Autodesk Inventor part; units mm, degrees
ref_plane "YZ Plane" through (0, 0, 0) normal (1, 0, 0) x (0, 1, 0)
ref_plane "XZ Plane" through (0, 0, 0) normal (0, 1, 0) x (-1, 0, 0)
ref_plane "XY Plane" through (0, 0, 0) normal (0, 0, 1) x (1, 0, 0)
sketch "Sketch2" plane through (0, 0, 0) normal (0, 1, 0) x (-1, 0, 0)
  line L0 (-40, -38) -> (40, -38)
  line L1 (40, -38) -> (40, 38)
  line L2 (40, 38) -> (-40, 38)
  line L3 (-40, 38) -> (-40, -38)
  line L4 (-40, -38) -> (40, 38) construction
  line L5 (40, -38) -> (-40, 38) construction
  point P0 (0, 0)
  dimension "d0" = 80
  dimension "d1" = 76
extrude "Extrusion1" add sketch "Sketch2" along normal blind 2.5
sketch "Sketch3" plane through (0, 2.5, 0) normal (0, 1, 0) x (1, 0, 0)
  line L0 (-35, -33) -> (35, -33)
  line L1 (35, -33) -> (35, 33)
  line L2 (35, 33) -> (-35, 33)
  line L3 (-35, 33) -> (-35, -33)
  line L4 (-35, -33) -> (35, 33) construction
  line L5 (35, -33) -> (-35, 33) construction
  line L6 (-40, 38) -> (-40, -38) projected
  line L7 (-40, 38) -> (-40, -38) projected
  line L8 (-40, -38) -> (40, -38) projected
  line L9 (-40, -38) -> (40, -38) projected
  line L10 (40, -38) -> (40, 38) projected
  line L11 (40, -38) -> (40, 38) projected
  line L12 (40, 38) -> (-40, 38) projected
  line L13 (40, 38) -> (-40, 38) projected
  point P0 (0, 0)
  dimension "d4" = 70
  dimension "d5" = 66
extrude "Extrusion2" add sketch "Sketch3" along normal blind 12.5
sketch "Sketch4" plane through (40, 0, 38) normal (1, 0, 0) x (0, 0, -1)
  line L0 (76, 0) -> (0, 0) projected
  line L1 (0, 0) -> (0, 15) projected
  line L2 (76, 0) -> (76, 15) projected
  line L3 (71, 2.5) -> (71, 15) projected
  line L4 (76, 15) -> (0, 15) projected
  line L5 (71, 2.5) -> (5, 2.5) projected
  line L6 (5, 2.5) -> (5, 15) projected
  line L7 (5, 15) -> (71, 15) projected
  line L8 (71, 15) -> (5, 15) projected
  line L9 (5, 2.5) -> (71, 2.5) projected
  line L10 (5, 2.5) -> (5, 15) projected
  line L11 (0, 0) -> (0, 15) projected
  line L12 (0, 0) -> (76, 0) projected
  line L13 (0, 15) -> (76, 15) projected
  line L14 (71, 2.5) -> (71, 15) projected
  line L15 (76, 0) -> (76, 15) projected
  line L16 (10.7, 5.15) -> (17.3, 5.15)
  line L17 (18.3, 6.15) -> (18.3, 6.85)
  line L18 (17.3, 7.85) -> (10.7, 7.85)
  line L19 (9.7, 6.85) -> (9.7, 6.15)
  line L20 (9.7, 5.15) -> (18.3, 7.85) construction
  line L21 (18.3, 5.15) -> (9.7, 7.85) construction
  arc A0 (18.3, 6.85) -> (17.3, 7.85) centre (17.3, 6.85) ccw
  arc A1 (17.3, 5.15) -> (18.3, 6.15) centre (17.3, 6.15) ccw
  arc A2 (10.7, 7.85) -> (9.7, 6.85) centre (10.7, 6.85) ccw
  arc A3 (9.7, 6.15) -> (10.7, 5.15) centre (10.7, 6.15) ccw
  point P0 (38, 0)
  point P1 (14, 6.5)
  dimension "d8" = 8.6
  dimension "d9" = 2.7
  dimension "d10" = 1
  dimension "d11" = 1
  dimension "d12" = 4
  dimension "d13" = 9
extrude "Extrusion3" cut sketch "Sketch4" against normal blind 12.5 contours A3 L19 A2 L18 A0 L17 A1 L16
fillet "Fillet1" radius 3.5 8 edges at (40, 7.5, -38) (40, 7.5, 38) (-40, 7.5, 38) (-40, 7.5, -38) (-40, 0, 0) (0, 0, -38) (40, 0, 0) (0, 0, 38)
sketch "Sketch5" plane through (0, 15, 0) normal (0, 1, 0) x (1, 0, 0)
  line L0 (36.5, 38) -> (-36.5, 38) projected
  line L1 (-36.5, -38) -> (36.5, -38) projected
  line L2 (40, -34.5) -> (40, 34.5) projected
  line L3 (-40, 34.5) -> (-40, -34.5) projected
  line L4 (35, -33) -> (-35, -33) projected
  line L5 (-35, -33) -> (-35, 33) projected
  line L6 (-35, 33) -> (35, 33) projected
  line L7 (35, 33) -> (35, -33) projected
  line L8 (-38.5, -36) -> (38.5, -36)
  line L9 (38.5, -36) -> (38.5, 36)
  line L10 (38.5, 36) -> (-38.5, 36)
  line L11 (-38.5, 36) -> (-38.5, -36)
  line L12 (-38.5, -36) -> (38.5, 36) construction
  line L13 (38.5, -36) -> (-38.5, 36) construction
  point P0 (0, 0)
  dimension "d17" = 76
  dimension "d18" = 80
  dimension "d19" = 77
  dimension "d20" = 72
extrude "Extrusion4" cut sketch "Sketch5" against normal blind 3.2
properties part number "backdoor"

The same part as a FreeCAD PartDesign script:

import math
import FreeCAD as App
import Part
import Sketcher
from FreeCAD import Vector
Q = App.Units.Quantity


def edges_at(feature, points):
    """Names of the edges that pass closest to the given points."""
    edges = feature.Shape.Edges
    near = lambda p: min(range(len(edges)), key=lambda i: edges[i].distToShape(Part.Vertex(*p))[0])
    return sorted({f"Edge{near(p) + 1}" for p in points})


def add_polygon(sketch, points):
    """Adds a closed chain of lines whose ends are joined by coincident constraints."""
    first, n = sketch.GeometryCount, len(points)
    for a, b in zip(points, points[1:] + points[:1]):
        sketch.addGeometry(Part.LineSegment(App.Vector(*a, 0), App.Vector(*b, 0)), False)
    for i in range(n):
        sketch.addConstraint(Sketcher.Constraint("Coincident", first + i, 2, first + (i + 1) % n, 1))

doc = App.newDocument("Part")
body = doc.addObject("PartDesign::Body", "Body")

# Sketch on XZ plane
sketch1 = body.newObject("Sketcher::SketchObject", "Sketch")
sketch1.AttachmentSupport = (doc.getObject("XZ_Plane"), [""])
sketch1.MapMode = "FlatFace"
add_polygon(sketch1, [(40, 38), (40, -38), (-40, -38), (-40, 38)])  # lines 0-3
sketch1.addConstraint([
    Sketcher.Constraint("Vertical", 0),
    Sketcher.Constraint("Horizontal", 1),
    Sketcher.Constraint("Vertical", 2),
    Sketcher.Constraint("Horizontal", 3),
    Sketcher.Constraint("Symmetric", 0, 2, 2, 2, -1, 1),
    Sketcher.Constraint("DistanceX", 1, 2, 1, 1, Q("80 mm")),
    Sketcher.Constraint("DistanceY", 0, 2, 0, 1, Q("76 mm")),
])
pad1 = body.newObject("PartDesign::Pad", "Pad")
pad1.Profile = sketch1
pad1.Length = 2.5
pad1.Reversed = True

# Sketch on XZ plane
sketch2 = body.newObject("Sketcher::SketchObject", "Sketch001")
sketch2.AttachmentSupport = (doc.getObject("XZ_Plane"), [""])
sketch2.MapMode = "FlatFace"
sketch2.AttachmentOffset = App.Placement(Vector(0, 0, -2.5), App.Rotation())
add_polygon(sketch2, [(40, -38), (-40, -38), (-40, 38), (40, 38)])  # lines 0-3
add_polygon(sketch2, [(35, 33), (-35, 33), (-35, -33), (35, -33)])  # lines 4-7
sketch2.addConstraint([
    Sketcher.Constraint("Horizontal", 0),
    Sketcher.Constraint("Vertical", 1),
    Sketcher.Constraint("Horizontal", 2),
    Sketcher.Constraint("Vertical", 3),
    Sketcher.Constraint("Horizontal", 4),
    Sketcher.Constraint("Vertical", 5),
    Sketcher.Constraint("Horizontal", 6),
    Sketcher.Constraint("Vertical", 7),
    Sketcher.Constraint("Symmetric", 0, 2, 2, 2, -1, 1),
    Sketcher.Constraint("Symmetric", 4, 2, 6, 2, -1, 1),
    Sketcher.Constraint("DistanceX", 4, 2, 4, 1, Q("70 mm")),
    Sketcher.Constraint("DistanceY", 5, 2, 5, 1, Q("66 mm")),
    Sketcher.Constraint("DistanceX", 0, 2, 0, 1, Q("80 mm")),
    Sketcher.Constraint("DistanceY", 1, 1, 1, 2, Q("76 mm")),
])
pad2 = body.newObject("PartDesign::Pad", "Pad001")
pad2.Profile = sketch2
pad2.Length = 12.5
pad2.Reversed = True

# Sketch on YZ plane
sketch3 = body.newObject("Sketcher::SketchObject", "Sketch002")
sketch3.AttachmentSupport = (doc.getObject("YZ_Plane"), [""])
sketch3.MapMode = "FlatFace"
sketch3.AttachmentOffset = App.Placement(Vector(0, 0, 40), App.Rotation())
sketch3.addGeometry([
    Part.ArcOfCircle(Part.Circle(Vector(6.15, 27.3, 0), Vector(0, 0, 1), 1), math.radians(90), math.radians(180)),  # 0
    Part.LineSegment(Vector(5.15, 27.3, 0), Vector(5.15, 20.7, 0)),  # 1
    Part.ArcOfCircle(Part.Circle(Vector(6.15, 20.7, 0), Vector(0, 0, 1), 1), math.radians(180), math.radians(270)),  # 2
    Part.LineSegment(Vector(6.15, 19.7, 0), Vector(6.85, 19.7, 0)),  # 3
    Part.ArcOfCircle(Part.Circle(Vector(6.85, 20.7, 0), Vector(0, 0, 1), 1), math.radians(-90), math.radians(0)),  # 4
    Part.LineSegment(Vector(7.85, 20.7, 0), Vector(7.85, 27.3, 0)),  # 5
    Part.ArcOfCircle(Part.Circle(Vector(6.85, 27.3, 0), Vector(0, 0, 1), 1), math.radians(0), math.radians(90)),  # 6
    Part.LineSegment(Vector(6.85, 28.3, 0), Vector(6.15, 28.3, 0)),  # 7
], False)
sketch3.addConstraint([
    Sketcher.Constraint("Tangent", 0, 2, 1, 1),
    Sketcher.Constraint("Tangent", 1, 2, 2, 1),
    Sketcher.Constraint("Tangent", 2, 2, 3, 1),
    Sketcher.Constraint("Tangent", 3, 2, 4, 1),
    Sketcher.Constraint("Tangent", 4, 2, 5, 1),
    Sketcher.Constraint("Tangent", 5, 2, 6, 1),
    Sketcher.Constraint("Tangent", 6, 2, 7, 1),
    Sketcher.Constraint("Tangent", 7, 2, 0, 1),
    Sketcher.Constraint("Vertical", 1),
    Sketcher.Constraint("Horizontal", 3),
    Sketcher.Constraint("Vertical", 5),
    Sketcher.Constraint("Horizontal", 7),
    Sketcher.Constraint("Equal", 0, 2),
    Sketcher.Constraint("Equal", 2, 4),
    Sketcher.Constraint("Equal", 4, 6),
    Sketcher.Constraint("Radius", 0, Q("1 mm")),
    Sketcher.Constraint("DistanceX", 1, 2, 4, 2, Q("2.7 mm")),
    Sketcher.Constraint("DistanceY", 1, 2, 1, 1, Q("6.6 mm")),
    Sketcher.Constraint("DistanceY", -1, 1, 0, 3, Q("27.3 mm")),
    Sketcher.Constraint("DistanceX", -1, 1, 0, 3, Q("6.15 mm")),
])
pocket1 = body.newObject("PartDesign::Pocket", "Pocket")
pocket1.Profile = sketch3
pocket1.Length = 12.5
doc.recompute()

fillet = body.newObject("PartDesign::Fillet", "Fillet")
fillet.Base = (pocket1, edges_at(pocket1, [
    (40, 7.5, -38),
    (40, 7.5, 38),
    (-40, 7.5, 38),
    (-40, 7.5, -38),
    (-40, 0, 0),
    (0, 0, -38),
    (40, 0, 0),
    (0, 0, 38),
]))
fillet.Radius = 3.5

# Sketch on XZ plane
sketch4 = body.newObject("Sketcher::SketchObject", "Sketch003")
sketch4.AttachmentSupport = (doc.getObject("XZ_Plane"), [""])
sketch4.MapMode = "FlatFace"
sketch4.AttachmentOffset = App.Placement(Vector(0, 0, -15), App.Rotation())
add_polygon(sketch4, [(-38.5, -36), (-38.5, 36), (38.5, 36), (38.5, -36)])  # lines 0-3
add_polygon(sketch4, [(35, -33), (35, 33), (-35, 33), (-35, -33)])  # lines 4-7
sketch4.addConstraint([
    Sketcher.Constraint("Vertical", 0),
    Sketcher.Constraint("Horizontal", 1),
    Sketcher.Constraint("Vertical", 2),
    Sketcher.Constraint("Horizontal", 3),
    Sketcher.Constraint("Vertical", 4),
    Sketcher.Constraint("Horizontal", 5),
    Sketcher.Constraint("Vertical", 6),
    Sketcher.Constraint("Horizontal", 7),
    Sketcher.Constraint("Symmetric", 0, 2, 2, 2, -1, 1),
    Sketcher.Constraint("Symmetric", 4, 2, 6, 2, -1, 1),
    Sketcher.Constraint("DistanceX", 1, 1, 1, 2, Q("77 mm")),
    Sketcher.Constraint("DistanceY", 0, 1, 0, 2, Q("72 mm")),
    Sketcher.Constraint("DistanceX", 5, 2, 5, 1, Q("70 mm")),
    Sketcher.Constraint("DistanceY", 4, 1, 4, 2, Q("66 mm")),
])
pocket2 = body.newObject("PartDesign::Pocket", "Pocket001")
pocket2.Profile = sketch4
pocket2.Length = 3.2
pocket2.Reversed = True

doc.recompute()
